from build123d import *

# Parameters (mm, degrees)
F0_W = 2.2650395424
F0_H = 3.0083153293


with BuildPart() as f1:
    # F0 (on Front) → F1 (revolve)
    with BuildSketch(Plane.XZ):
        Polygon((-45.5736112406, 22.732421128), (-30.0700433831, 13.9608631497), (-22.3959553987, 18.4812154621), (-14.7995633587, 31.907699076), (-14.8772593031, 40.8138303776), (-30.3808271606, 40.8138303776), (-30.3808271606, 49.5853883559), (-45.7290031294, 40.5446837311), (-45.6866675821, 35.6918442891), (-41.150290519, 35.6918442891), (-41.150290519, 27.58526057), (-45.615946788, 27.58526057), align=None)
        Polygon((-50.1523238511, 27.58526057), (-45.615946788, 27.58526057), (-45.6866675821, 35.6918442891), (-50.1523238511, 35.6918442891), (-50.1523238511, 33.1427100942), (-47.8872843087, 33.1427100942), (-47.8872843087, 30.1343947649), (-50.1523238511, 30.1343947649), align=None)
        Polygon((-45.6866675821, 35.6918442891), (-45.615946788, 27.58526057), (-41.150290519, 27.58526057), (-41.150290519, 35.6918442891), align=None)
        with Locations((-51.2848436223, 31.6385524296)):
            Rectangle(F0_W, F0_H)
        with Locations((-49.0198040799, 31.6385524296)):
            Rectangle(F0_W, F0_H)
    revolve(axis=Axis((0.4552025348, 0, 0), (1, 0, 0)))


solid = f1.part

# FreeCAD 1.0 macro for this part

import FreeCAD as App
import Part
import Sketcher
Q = App.Units.Quantity


def add_polygon(sketch, points):
    """Adds a closed chain of lines whose ends are joined by coincident constraints."""
    first, n = sketch.GeometryCount, len(points)
    for a, b in zip(points, points[1:] + points[:1]):
        sketch.addGeometry(Part.LineSegment(App.Vector(*a, 0), App.Vector(*b, 0)), False)
    for i in range(n):
        sketch.addConstraint(Sketcher.Constraint("Coincident", first + i, 2, first + (i + 1) % n, 1))

doc = App.newDocument("Part")
body = doc.addObject("PartDesign::Body", "Body")

sketch1 = doc.addObject("Sketcher::SketchObject", "Sketch")
body.addObject(sketch1)
sketch1.AttachmentSupport = (doc.XZ_Plane, [""])
sketch1.MapMode = "FlatFace"
add_polygon(sketch1, [(-45.6, 22.7), (-30.1, 14), (-22.4, 18.5), (-14.8, 31.9), (-14.9, 40.8), (-30.4, 40.8), (-30.4, 49.6), (-45.7, 40.5), (-45.7, 35.7), (-50.2, 35.7), (-50.2, 33.1), (-52.4, 33.1), (-52.4, 30.1), (-50.2, 30.1), (-50.2, 27.6), (-45.6, 27.6)])
sketch1.addConstraint([
    Sketcher.Constraint("Horizontal", 4),
    Sketcher.Constraint("Vertical", 5),
    Sketcher.Constraint("Horizontal", 8),
    Sketcher.Constraint("Vertical", 9),
    Sketcher.Constraint("Horizontal", 10),
    Sketcher.Constraint("Vertical", 11),
    Sketcher.Constraint("Horizontal", 12),
    Sketcher.Constraint("Vertical", 13),
    Sketcher.Constraint("Horizontal", 14),
    Sketcher.Constraint("Perpendicular", 0, 2),
    Sketcher.Constraint("Parallel", 1, 6),
    Sketcher.Constraint("Parallel", 3, 7),
    Sketcher.Constraint("Parallel", 7, 15),
    Sketcher.Constraint("Vertical", 9, 2, 12, 2),
    Sketcher.Constraint("Equal", 9, 13),
    Sketcher.Constraint("Equal", 1, 3),
    Sketcher.Constraint("Equal", 0, 6),
    Sketcher.Constraint("Equal", 7, 15),
    Sketcher.Constraint("DistanceX", 10, 2, 10, 1, Q("2.26504 mm")),
    Sketcher.Constraint("DistanceY", -1, 1, 2, 2, Q("31.907699 mm")),
    Sketcher.Constraint("Distance", 0, Q("17.81294 mm")),
    Sketcher.Constraint("Distance", 1, Q("8.90647 mm")),
    Sketcher.Constraint("Distance", 2, Q("15.426459 mm")),
    Sketcher.Constraint("DistanceX", 4, 2, 4, 1, Q("15.503568 mm")),
    Sketcher.Constraint("DistanceX", 8, 2, 8, 1, Q("4.465656 mm")),
    Sketcher.Constraint("DistanceX", 14, 1, 14, 2, Q("4.536377 mm")),
    Sketcher.Constraint("DistanceY", 5, 1, 5, 2, Q("8.771558 mm")),
    Sketcher.Constraint("DistanceY", 9, 2, 9, 1, Q("2.549134 mm")),
    Sketcher.Constraint("DistanceY", 11, 2, 11, 1, Q("3.008315 mm")),
    Sketcher.Constraint("DistanceX", 3, 2, -1, 1, Q("14.877259 mm")),
    Sketcher.Constraint("DistanceY", -1, 1, 3, 2, Q("40.81383 mm")),
    Sketcher.Constraint("DistanceY", -1, 1, 9, 2, Q("33.14271 mm")),
])
revolution = doc.addObject("PartDesign::Revolution", "Revolution")
body.addObject(revolution)
revolution.Profile = sketch1
revolution.ReferenceAxis = (sketch1, ["H_Axis"])
revolution.Angle = 360

doc.recompute()
